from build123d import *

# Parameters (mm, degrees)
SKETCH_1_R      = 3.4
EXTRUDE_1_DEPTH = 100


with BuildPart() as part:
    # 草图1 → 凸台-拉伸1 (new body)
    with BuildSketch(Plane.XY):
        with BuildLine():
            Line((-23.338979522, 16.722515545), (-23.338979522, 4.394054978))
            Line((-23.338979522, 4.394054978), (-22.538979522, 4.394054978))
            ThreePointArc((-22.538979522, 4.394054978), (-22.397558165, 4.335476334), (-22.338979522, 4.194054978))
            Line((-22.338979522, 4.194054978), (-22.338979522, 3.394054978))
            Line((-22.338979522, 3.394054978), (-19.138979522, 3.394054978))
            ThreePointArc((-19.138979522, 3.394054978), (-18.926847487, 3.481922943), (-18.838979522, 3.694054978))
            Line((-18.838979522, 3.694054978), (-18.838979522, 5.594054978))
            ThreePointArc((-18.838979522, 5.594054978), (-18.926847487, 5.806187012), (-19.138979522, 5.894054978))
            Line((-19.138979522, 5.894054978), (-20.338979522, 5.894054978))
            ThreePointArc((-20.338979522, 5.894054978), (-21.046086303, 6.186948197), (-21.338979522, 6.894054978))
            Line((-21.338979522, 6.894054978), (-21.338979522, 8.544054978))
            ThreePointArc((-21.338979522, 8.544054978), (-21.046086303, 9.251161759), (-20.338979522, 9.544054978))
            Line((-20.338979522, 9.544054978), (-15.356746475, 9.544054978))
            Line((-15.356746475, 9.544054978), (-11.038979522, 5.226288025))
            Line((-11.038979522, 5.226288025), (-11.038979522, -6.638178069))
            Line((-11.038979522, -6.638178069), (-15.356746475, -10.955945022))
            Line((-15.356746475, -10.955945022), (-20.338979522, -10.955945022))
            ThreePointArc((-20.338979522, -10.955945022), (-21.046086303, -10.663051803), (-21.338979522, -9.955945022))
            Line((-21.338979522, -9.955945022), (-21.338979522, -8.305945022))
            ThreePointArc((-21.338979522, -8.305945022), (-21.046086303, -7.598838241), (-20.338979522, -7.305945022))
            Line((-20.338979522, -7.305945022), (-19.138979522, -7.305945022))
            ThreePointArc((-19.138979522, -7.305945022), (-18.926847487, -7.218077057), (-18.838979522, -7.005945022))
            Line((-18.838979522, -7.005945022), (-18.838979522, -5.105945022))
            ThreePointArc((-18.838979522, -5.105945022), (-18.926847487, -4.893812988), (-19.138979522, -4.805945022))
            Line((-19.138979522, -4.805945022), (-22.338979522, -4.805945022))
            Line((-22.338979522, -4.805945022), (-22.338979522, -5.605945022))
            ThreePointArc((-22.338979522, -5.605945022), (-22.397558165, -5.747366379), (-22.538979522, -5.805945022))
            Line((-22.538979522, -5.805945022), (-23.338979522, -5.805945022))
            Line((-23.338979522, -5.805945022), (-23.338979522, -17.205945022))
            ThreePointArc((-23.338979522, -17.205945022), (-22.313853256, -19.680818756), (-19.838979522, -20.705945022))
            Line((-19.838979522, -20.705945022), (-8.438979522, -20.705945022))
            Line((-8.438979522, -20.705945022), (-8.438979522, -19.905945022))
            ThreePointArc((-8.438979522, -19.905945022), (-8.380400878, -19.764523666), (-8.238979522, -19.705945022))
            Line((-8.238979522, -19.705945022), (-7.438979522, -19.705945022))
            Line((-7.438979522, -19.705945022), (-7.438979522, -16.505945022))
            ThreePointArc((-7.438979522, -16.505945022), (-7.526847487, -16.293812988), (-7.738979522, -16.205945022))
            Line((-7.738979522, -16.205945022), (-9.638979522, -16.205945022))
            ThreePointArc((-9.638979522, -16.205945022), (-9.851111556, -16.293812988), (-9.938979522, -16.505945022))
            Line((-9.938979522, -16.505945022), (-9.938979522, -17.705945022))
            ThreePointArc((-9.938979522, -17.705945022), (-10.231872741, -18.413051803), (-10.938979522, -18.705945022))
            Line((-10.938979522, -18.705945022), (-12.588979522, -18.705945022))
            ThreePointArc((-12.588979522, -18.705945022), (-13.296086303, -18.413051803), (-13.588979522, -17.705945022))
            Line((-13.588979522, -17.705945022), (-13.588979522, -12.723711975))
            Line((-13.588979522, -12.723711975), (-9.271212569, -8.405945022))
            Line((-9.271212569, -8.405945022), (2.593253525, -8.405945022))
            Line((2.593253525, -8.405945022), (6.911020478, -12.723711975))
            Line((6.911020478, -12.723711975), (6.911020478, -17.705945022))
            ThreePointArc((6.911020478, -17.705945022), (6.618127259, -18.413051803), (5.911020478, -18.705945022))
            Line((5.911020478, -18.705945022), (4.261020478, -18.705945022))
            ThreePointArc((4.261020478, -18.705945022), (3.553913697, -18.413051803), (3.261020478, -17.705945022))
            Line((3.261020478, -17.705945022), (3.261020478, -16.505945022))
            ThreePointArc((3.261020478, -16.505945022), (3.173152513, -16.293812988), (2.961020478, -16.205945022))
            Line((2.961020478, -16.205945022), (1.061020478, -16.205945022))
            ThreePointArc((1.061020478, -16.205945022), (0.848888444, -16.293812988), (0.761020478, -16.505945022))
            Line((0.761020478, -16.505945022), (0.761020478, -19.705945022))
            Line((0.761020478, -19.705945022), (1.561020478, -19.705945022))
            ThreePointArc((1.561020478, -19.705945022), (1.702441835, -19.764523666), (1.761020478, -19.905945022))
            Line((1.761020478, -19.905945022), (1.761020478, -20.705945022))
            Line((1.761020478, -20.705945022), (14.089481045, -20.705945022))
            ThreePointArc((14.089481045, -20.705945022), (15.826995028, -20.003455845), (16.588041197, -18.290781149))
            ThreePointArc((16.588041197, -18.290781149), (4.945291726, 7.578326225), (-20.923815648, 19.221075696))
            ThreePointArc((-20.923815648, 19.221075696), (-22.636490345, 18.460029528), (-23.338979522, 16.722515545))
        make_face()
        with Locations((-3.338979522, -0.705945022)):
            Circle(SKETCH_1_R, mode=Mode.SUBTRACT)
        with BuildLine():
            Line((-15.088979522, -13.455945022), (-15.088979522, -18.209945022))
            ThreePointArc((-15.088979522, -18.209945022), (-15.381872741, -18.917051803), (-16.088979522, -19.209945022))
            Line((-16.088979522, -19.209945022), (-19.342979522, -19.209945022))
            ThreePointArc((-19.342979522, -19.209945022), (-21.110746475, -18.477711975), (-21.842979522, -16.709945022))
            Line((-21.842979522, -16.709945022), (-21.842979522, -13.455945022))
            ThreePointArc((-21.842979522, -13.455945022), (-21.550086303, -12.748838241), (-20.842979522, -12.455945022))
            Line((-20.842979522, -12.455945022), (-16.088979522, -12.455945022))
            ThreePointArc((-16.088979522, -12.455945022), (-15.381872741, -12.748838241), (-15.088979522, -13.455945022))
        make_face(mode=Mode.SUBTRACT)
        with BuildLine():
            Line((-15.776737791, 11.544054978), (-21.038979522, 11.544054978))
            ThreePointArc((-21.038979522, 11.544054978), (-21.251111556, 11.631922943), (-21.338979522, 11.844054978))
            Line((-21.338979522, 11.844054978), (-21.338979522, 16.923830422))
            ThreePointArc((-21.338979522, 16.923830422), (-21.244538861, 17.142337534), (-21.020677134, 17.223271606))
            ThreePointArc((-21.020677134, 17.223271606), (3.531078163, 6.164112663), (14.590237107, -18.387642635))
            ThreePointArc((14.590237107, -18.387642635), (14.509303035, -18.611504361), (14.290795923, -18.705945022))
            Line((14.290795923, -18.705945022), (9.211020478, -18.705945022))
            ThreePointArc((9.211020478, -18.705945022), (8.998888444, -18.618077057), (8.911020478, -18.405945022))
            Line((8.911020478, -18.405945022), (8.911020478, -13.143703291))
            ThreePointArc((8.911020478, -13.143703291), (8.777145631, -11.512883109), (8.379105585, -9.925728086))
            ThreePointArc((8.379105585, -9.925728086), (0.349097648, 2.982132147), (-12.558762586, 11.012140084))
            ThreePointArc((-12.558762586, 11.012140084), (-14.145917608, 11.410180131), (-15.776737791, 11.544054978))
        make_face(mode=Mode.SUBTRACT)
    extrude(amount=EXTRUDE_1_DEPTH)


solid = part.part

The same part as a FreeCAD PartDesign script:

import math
import FreeCAD as App
import Part
import Sketcher
from FreeCAD import Vector

doc = App.newDocument("Part")
body = doc.addObject("PartDesign::Body", "Body")

sketch1 = doc.addObject("Sketcher::SketchObject", "Sketch")
body.addObject(sketch1)
sketch1.AttachmentSupport = (doc.XY_Plane, [""])
sketch1.MapMode = "FlatFace"
sketch1.addGeometry(Part.LineSegment(Vector(-23.34, 16.72, 0), Vector(-23.34, 4.39, 0)), False)
sketch1.addGeometry(Part.LineSegment(Vector(-23.34, 4.39, 0), Vector(-22.54, 4.39, 0)), False)
sketch1.addGeometry(Part.ArcOfCircle(Part.Circle(Vector(-22.54, 4.19, 0), Vector(0, 0, 1), 0.2), math.radians(0), math.radians(90)), False)
sketch1.addGeometry(Part.LineSegment(Vector(-22.34, 4.19, 0), Vector(-22.34, 3.39, 0)), False)
sketch1.addGeometry(Part.LineSegment(Vector(-22.34, 3.39, 0), Vector(-19.14, 3.39, 0)), False)
sketch1.addGeometry(Part.ArcOfCircle(Part.Circle(Vector(-19.14, 3.69, 0), Vector(0, 0, 1), 0.3), math.radians(-90), math.radians(0)), False)
sketch1.addGeometry(Part.LineSegment(Vector(-18.84, 3.69, 0), Vector(-18.84, 5.59, 0)), False)
sketch1.addGeometry(Part.ArcOfCircle(Part.Circle(Vector(-19.14, 5.59, 0), Vector(0, 0, 1), 0.3), math.radians(0), math.radians(90)), False)
sketch1.addGeometry(Part.LineSegment(Vector(-19.14, 5.89, 0), Vector(-20.34, 5.89, 0)), False)
sketch1.addGeometry(Part.ArcOfCircle(Part.Circle(Vector(-20.34, 6.89, 0), Vector(0, 0, 1), 1), math.radians(-180), math.radians(-90)), False)
sketch1.addGeometry(Part.LineSegment(Vector(-21.34, 6.89, 0), Vector(-21.34, 8.54, 0)), False)
sketch1.addGeometry(Part.ArcOfCircle(Part.Circle(Vector(-20.34, 8.54, 0), Vector(0, 0, 1), 1), math.radians(90), math.radians(180)), False)
sketch1.addGeometry(Part.LineSegment(Vector(-20.34, 9.54, 0), Vector(-15.36, 9.54, 0)), False)
sketch1.addGeometry(Part.LineSegment(Vector(-15.36, 9.54, 0), Vector(-11.04, 5.23, 0)), False)
sketch1.addGeometry(Part.LineSegment(Vector(-11.04, 5.23, 0), Vector(-11.04, -6.64, 0)), False)
sketch1.addGeometry(Part.LineSegment(Vector(-11.04, -6.64, 0), Vector(-15.36, -10.96, 0)), False)
sketch1.addGeometry(Part.LineSegment(Vector(-15.36, -10.96, 0), Vector(-20.34, -10.96, 0)), False)
sketch1.addGeometry(Part.ArcOfCircle(Part.Circle(Vector(-20.34, -9.96, 0), Vector(0, 0, 1), 1), math.radians(-180), math.radians(-90)), False)
sketch1.addGeometry(Part.LineSegment(Vector(-21.34, -9.96, 0), Vector(-21.34, -8.31, 0)), False)
sketch1.addGeometry(Part.ArcOfCircle(Part.Circle(Vector(-20.34, -8.31, 0), Vector(0, 0, 1), 1), math.radians(90), math.radians(180)), False)
sketch1.addGeometry(Part.LineSegment(Vector(-20.34, -7.31, 0), Vector(-19.14, -7.31, 0)), False)
sketch1.addGeometry(Part.ArcOfCircle(Part.Circle(Vector(-19.14, -7.01, 0), Vector(0, 0, 1), 0.3), math.radians(-90), math.radians(0)), False)
sketch1.addGeometry(Part.LineSegment(Vector(-18.84, -7.01, 0), Vector(-18.84, -5.11, 0)), False)
sketch1.addGeometry(Part.ArcOfCircle(Part.Circle(Vector(-19.14, -5.11, 0), Vector(0, 0, 1), 0.3), math.radians(0), math.radians(90)), False)
sketch1.addGeometry(Part.LineSegment(Vector(-19.14, -4.81, 0), Vector(-22.34, -4.81, 0)), False)
sketch1.addGeometry(Part.LineSegment(Vector(-22.34, -4.81, 0), Vector(-22.34, -5.61, 0)), False)
sketch1.addGeometry(Part.ArcOfCircle(Part.Circle(Vector(-22.54, -5.61, 0), Vector(0, 0, 1), 0.2), math.radians(-90), math.radians(0)), False)
sketch1.addGeometry(Part.LineSegment(Vector(-22.54, -5.81, 0), Vector(-23.34, -5.81, 0)), False)
sketch1.addGeometry(Part.LineSegment(Vector(-23.34, -5.81, 0), Vector(-23.34, -17.21, 0)), False)
sketch1.addGeometry(Part.ArcOfCircle(Part.Circle(Vector(-19.84, -17.21, 0), Vector(0, 0, 1), 3.5), math.radians(-180), math.radians(-90)), False)
sketch1.addGeometry(Part.LineSegment(Vector(-19.84, -20.71, 0), Vector(-8.44, -20.71, 0)), False)
sketch1.addGeometry(Part.LineSegment(Vector(-8.44, -20.71, 0), Vector(-8.44, -19.91, 0)), False)
sketch1.addGeometry(Part.ArcOfCircle(Part.Circle(Vector(-8.24, -19.91, 0), Vector(0, 0, 1), 0.2), math.radians(90), math.radians(180)), False)
sketch1.addGeometry(Part.LineSegment(Vector(-8.24, -19.71, 0), Vector(-7.44, -19.71, 0)), False)
sketch1.addGeometry(Part.LineSegment(Vector(-7.44, -19.71, 0), Vector(-7.44, -16.51, 0)), False)
sketch1.addGeometry(Part.ArcOfCircle(Part.Circle(Vector(-7.74, -16.51, 0), Vector(0, 0, 1), 0.3), math.radians(0), math.radians(90)), False)
sketch1.addGeometry(Part.LineSegment(Vector(-7.74, -16.21, 0), Vector(-9.64, -16.21, 0)), False)
sketch1.addGeometry(Part.ArcOfCircle(Part.Circle(Vector(-9.64, -16.51, 0), Vector(0, 0, 1), 0.3), math.radians(90), math.radians(180)), False)
sketch1.addGeometry(Part.LineSegment(Vector(-9.94, -16.51, 0), Vector(-9.94, -17.71, 0)), False)
sketch1.addGeometry(Part.ArcOfCircle(Part.Circle(Vector(-10.94, -17.71, 0), Vector(0, 0, 1), 1), math.radians(-90), math.radians(0)), False)
sketch1.addGeometry(Part.LineSegment(Vector(-10.94, -18.71, 0), Vector(-12.59, -18.71, 0)), False)
sketch1.addGeometry(Part.ArcOfCircle(Part.Circle(Vector(-12.59, -17.71, 0), Vector(0, 0, 1), 1), math.radians(-180), math.radians(-90)), False)
sketch1.addGeometry(Part.LineSegment(Vector(-13.59, -17.71, 0), Vector(-13.59, -12.72, 0)), False)
sketch1.addGeometry(Part.LineSegment(Vector(-13.59, -12.72, 0), Vector(-9.27, -8.41, 0)), False)
sketch1.addGeometry(Part.LineSegment(Vector(-9.27, -8.41, 0), Vector(2.59, -8.41, 0)), False)
sketch1.addGeometry(Part.LineSegment(Vector(2.59, -8.41, 0), Vector(6.91, -12.72, 0)), False)
sketch1.addGeometry(Part.LineSegment(Vector(6.91, -12.72, 0), Vector(6.91, -17.71, 0)), False)
sketch1.addGeometry(Part.ArcOfCircle(Part.Circle(Vector(5.91, -17.71, 0), Vector(0, 0, 1), 1), math.radians(-90), math.radians(0)), False)
sketch1.addGeometry(Part.LineSegment(Vector(5.91, -18.71, 0), Vector(4.26, -18.71, 0)), False)
sketch1.addGeometry(Part.ArcOfCircle(Part.Circle(Vector(4.26, -17.71, 0), Vector(0, 0, 1), 1), math.radians(-180), math.radians(-90)), False)
sketch1.addGeometry(Part.LineSegment(Vector(3.26, -17.71, 0), Vector(3.26, -16.51, 0)), False)
sketch1.addGeometry(Part.ArcOfCircle(Part.Circle(Vector(2.96, -16.51, 0), Vector(0, 0, 1), 0.3), math.radians(0), math.radians(90)), False)
sketch1.addGeometry(Part.LineSegment(Vector(2.96, -16.21, 0), Vector(1.06, -16.21, 0)), False)
sketch1.addGeometry(Part.ArcOfCircle(Part.Circle(Vector(1.06, -16.51, 0), Vector(0, 0, 1), 0.3), math.radians(90), math.radians(180)), False)
sketch1.addGeometry(Part.LineSegment(Vector(0.76, -16.51, 0), Vector(0.76, -19.71, 0)), False)
sketch1.addGeometry(Part.LineSegment(Vector(0.76, -19.71, 0), Vector(1.56, -19.71, 0)), False)
sketch1.addGeometry(Part.ArcOfCircle(Part.Circle(Vector(1.56, -19.91, 0), Vector(0, 0, 1), 0.2), math.radians(0), math.radians(90)), False)
sketch1.addGeometry(Part.LineSegment(Vector(1.76, -19.91, 0), Vector(1.76, -20.71, 0)), False)
sketch1.addGeometry(Part.LineSegment(Vector(1.76, -20.71, 0), Vector(14.09, -20.71, 0)), False)
sketch1.addGeometry(Part.ArcOfCircle(Part.Circle(Vector(14.09, -18.21, 0), Vector(0, 0, 1), 2.5), math.radians(-90), math.radians(-2)), False)
sketch1.addGeometry(Part.ArcOfCircle(Part.Circle(Vector(-23.34, -20.71, 0), Vector(0, 0, 1), 40), math.radians(3), math.radians(87)), False)
sketch1.addGeometry(Part.ArcOfCircle(Part.Circle(Vector(-20.84, 16.72, 0), Vector(0, 0, 1), 2.5), math.radians(92), math.radians(180)), False)
sketch1.addGeometry(Part.ArcOfCircle(Part.Circle(Vector(-16.09, -13.46, 0), Vector(0, 0, 1), 1), math.radians(0), math.radians(90)), False)
sketch1.addGeometry(Part.LineSegment(Vector(-15.09, -13.46, 0), Vector(-15.09, -18.21, 0)), False)
sketch1.addGeometry(Part.ArcOfCircle(Part.Circle(Vector(-16.09, -18.21, 0), Vector(0, 0, 1), 1), math.radians(-90), math.radians(0)), False)
sketch1.addGeometry(Part.LineSegment(Vector(-16.09, -19.21, 0), Vector(-19.34, -19.21, 0)), False)
sketch1.addGeometry(Part.ArcOfCircle(Part.Circle(Vector(-19.34, -16.71, 0), Vector(0, 0, 1), 2.5), math.radians(180), math.radians(270)), False)
sketch1.addGeometry(Part.LineSegment(Vector(-21.84, -16.71, 0), Vector(-21.84, -13.46, 0)), False)
sketch1.addGeometry(Part.ArcOfCircle(Part.Circle(Vector(-20.84, -13.46, 0), Vector(0, 0, 1), 1), math.radians(90), math.radians(180)), False)
sketch1.addGeometry(Part.LineSegment(Vector(-20.84, -12.46, 0), Vector(-16.09, -12.46, 0)), False)
sketch1.addGeometry(Part.ArcOfCircle(Part.Circle(Vector(-15.78, 1.54, 0), Vector(0, 0, 1), 10), math.radians(71.23), math.radians(90)), False)
sketch1.addGeometry(Part.LineSegment(Vector(-15.78, 11.54, 0), Vector(-21.04, 11.54, 0)), False)
sketch1.addGeometry(Part.ArcOfCircle(Part.Circle(Vector(-21.04, 11.84, 0), Vector(0, 0, 1), 0.3), math.radians(180), math.radians(270)), False)
sketch1.addGeometry(Part.LineSegment(Vector(-21.34, 11.84, 0), Vector(-21.34, 16.92, 0)), False)
sketch1.addGeometry(Part.ArcOfCircle(Part.Circle(Vector(-21.04, 16.92, 0), Vector(0, 0, 1), 0.3), math.radians(87), math.radians(180)), False)
sketch1.addGeometry(Part.ArcOfCircle(Part.Circle(Vector(-23.34, -20.71, 0), Vector(0, 0, 1), 38), math.radians(3), math.radians(87)), False)
sketch1.addGeometry(Part.ArcOfCircle(Part.Circle(Vector(14.29, -18.41, 0), Vector(0, 0, 1), 0.3), math.radians(-90), math.radians(3)), False)
sketch1.addGeometry(Part.LineSegment(Vector(14.29, -18.71, 0), Vector(9.21, -18.71, 0)), False)
sketch1.addGeometry(Part.ArcOfCircle(Part.Circle(Vector(9.21, -18.41, 0), Vector(0, 0, 1), 0.3), math.radians(180), math.radians(270)), False)
sketch1.addGeometry(Part.LineSegment(Vector(8.91, -18.41, 0), Vector(8.91, -13.14, 0)), False)
sketch1.addGeometry(Part.ArcOfCircle(Part.Circle(Vector(-1.09, -13.14, 0), Vector(0, 0, 1), 10), math.radians(0), math.radians(18.77)), False)
sketch1.addGeometry(Part.ArcOfCircle(Part.Circle(Vector(-23.34, -20.71, 0), Vector(0, 0, 1), 33.5), math.radians(19), math.radians(71)), False)
sketch1.addGeometry(Part.Circle(Vector(-3.34, -0.71, 0), Vector(0, 0, 1), 3.4), False)
sketch1.addConstraint(Sketcher.Constraint("Coincident", 0, 2, 1, 1))
sketch1.addConstraint(Sketcher.Constraint("Tangent", 1, 2, 2, 2))
sketch1.addConstraint(Sketcher.Constraint("Tangent", 2, 1, 3, 1))
sketch1.addConstraint(Sketcher.Constraint("Coincident", 3, 2, 4, 1))
sketch1.addConstraint(Sketcher.Constraint("Tangent", 4, 2, 5, 1))
sketch1.addConstraint(Sketcher.Constraint("Tangent", 5, 2, 6, 1))
sketch1.addConstraint(Sketcher.Constraint("Tangent", 6, 2, 7, 1))
sketch1.addConstraint(Sketcher.Constraint("Tangent", 7, 2, 8, 1))
sketch1.addConstraint(Sketcher.Constraint("Tangent", 8, 2, 9, 2))
sketch1.addConstraint(Sketcher.Constraint("Tangent", 9, 1, 10, 1))
sketch1.addConstraint(Sketcher.Constraint("Tangent", 10, 2, 11, 2))
sketch1.addConstraint(Sketcher.Constraint("Tangent", 11, 1, 12, 1))
sketch1.addConstraint(Sketcher.Constraint("Coincident", 12, 2, 13, 1))
sketch1.addConstraint(Sketcher.Constraint("Coincident", 13, 2, 14, 1))
sketch1.addConstraint(Sketcher.Constraint("Coincident", 14, 2, 15, 1))
sketch1.addConstraint(Sketcher.Constraint("Coincident", 15, 2, 16, 1))
sketch1.addConstraint(Sketcher.Constraint("Tangent", 16, 2, 17, 2))
sketch1.addConstraint(Sketcher.Constraint("Tangent", 17, 1, 18, 1))
sketch1.addConstraint(Sketcher.Constraint("Tangent", 18, 2, 19, 2))
sketch1.addConstraint(Sketcher.Constraint("Tangent", 19, 1, 20, 1))
sketch1.addConstraint(Sketcher.Constraint("Tangent", 20, 2, 21, 1))
sketch1.addConstraint(Sketcher.Constraint("Tangent", 21, 2, 22, 1))
sketch1.addConstraint(Sketcher.Constraint("Tangent", 22, 2, 23, 1))
sketch1.addConstraint(Sketcher.Constraint("Tangent", 23, 2, 24, 1))
sketch1.addConstraint(Sketcher.Constraint("Coincident", 24, 2, 25, 1))
sketch1.addConstraint(Sketcher.Constraint("Tangent", 25, 2, 26, 2))
sketch1.addConstraint(Sketcher.Constraint("Tangent", 26, 1, 27, 1))
sketch1.addConstraint(Sketcher.Constraint("Coincident", 27, 2, 28, 1))
sketch1.addConstraint(Sketcher.Constraint("Tangent", 28, 2, 29, 1))
sketch1.addConstraint(Sketcher.Constraint("Tangent", 29, 2, 30, 1))
sketch1.addConstraint(Sketcher.Constraint("Coincident", 30, 2, 31, 1))
sketch1.addConstraint(Sketcher.Constraint("Tangent", 31, 2, 32, 2))
sketch1.addConstraint(Sketcher.Constraint("Tangent", 32, 1, 33, 1))
sketch1.addConstraint(Sketcher.Constraint("Coincident", 33, 2, 34, 1))
sketch1.addConstraint(Sketcher.Constraint("Tangent", 34, 2, 35, 1))
sketch1.addConstraint(Sketcher.Constraint("Tangent", 35, 2, 36, 1))
sketch1.addConstraint(Sketcher.Constraint("Tangent", 36, 2, 37, 1))
sketch1.addConstraint(Sketcher.Constraint("Tangent", 37, 2, 38, 1))
sketch1.addConstraint(Sketcher.Constraint("Tangent", 38, 2, 39, 2))
sketch1.addConstraint(Sketcher.Constraint("Tangent", 39, 1, 40, 1))
sketch1.addConstraint(Sketcher.Constraint("Tangent", 40, 2, 41, 2))
sketch1.addConstraint(Sketcher.Constraint("Tangent", 41, 1, 42, 1))
sketch1.addConstraint(Sketcher.Constraint("Coincident", 42, 2, 43, 1))
sketch1.addConstraint(Sketcher.Constraint("Coincident", 43, 2, 44, 1))
sketch1.addConstraint(Sketcher.Constraint("Coincident", 44, 2, 45, 1))
sketch1.addConstraint(Sketcher.Constraint("Coincident", 45, 2, 46, 1))
sketch1.addConstraint(Sketcher.Constraint("Tangent", 46, 2, 47, 2))
sketch1.addConstraint(Sketcher.Constraint("Tangent", 47, 1, 48, 1))
sketch1.addConstraint(Sketcher.Constraint("Tangent", 48, 2, 49, 2))
sketch1.addConstraint(Sketcher.Constraint("Tangent", 49, 1, 50, 1))
sketch1.addConstraint(Sketcher.Constraint("Tangent", 50, 2, 51, 1))
sketch1.addConstraint(Sketcher.Constraint("Tangent", 51, 2, 52, 1))
sketch1.addConstraint(Sketcher.Constraint("Tangent", 52, 2, 53, 1))
sketch1.addConstraint(Sketcher.Constraint("Tangent", 53, 2, 54, 1))
sketch1.addConstraint(Sketcher.Constraint("Coincident", 54, 2, 55, 1))
sketch1.addConstraint(Sketcher.Constraint("Tangent", 55, 2, 56, 2))
sketch1.addConstraint(Sketcher.Constraint("Tangent", 56, 1, 57, 1))
sketch1.addConstraint(Sketcher.Constraint("Coincident", 57, 2, 58, 1))
sketch1.addConstraint(Sketcher.Constraint("Tangent", 58, 2, 59, 1))
sketch1.addConstraint(Sketcher.Constraint("Coincident", 59, 2, 60, 1))
sketch1.addConstraint(Sketcher.Constraint("Coincident", 60, 2, 61, 1))
sketch1.addConstraint(Sketcher.Constraint("Tangent", 61, 2, 0, 1))
sketch1.addConstraint(Sketcher.Constraint("Tangent", 62, 1, 63, 1))
sketch1.addConstraint(Sketcher.Constraint("Tangent", 63, 2, 64, 2))
sketch1.addConstraint(Sketcher.Constraint("Tangent", 64, 1, 65, 1))
sketch1.addConstraint(Sketcher.Constraint("Tangent", 65, 2, 66, 2))
sketch1.addConstraint(Sketcher.Constraint("Tangent", 66, 1, 67, 1))
sketch1.addConstraint(Sketcher.Constraint("Tangent", 67, 2, 68, 2))
sketch1.addConstraint(Sketcher.Constraint("Tangent", 68, 1, 69, 1))
sketch1.addConstraint(Sketcher.Constraint("Tangent", 69, 2, 62, 2))
sketch1.addConstraint(Sketcher.Constraint("Tangent", 70, 2, 71, 1))
sketch1.addConstraint(Sketcher.Constraint("Tangent", 71, 2, 72, 2))
sketch1.addConstraint(Sketcher.Constraint("Tangent", 72, 1, 73, 1))
sketch1.addConstraint(Sketcher.Constraint("Tangent", 73, 2, 74, 2))
sketch1.addConstraint(Sketcher.Constraint("Tangent", 74, 1, 75, 2))
sketch1.addConstraint(Sketcher.Constraint("Tangent", 75, 1, 76, 2))
sketch1.addConstraint(Sketcher.Constraint("Tangent", 76, 1, 77, 1))
sketch1.addConstraint(Sketcher.Constraint("Tangent", 77, 2, 78, 2))
sketch1.addConstraint(Sketcher.Constraint("Tangent", 78, 1, 79, 1))
sketch1.addConstraint(Sketcher.Constraint("Tangent", 79, 2, 80, 1))
sketch1.addConstraint(Sketcher.Constraint("Tangent", 80, 2, 81, 1))
sketch1.addConstraint(Sketcher.Constraint("Tangent", 81, 2, 70, 1))
sketch1.addConstraint(Sketcher.Constraint("Vertical", 0))
sketch1.addConstraint(Sketcher.Constraint("Horizontal", 1))
sketch1.addConstraint(Sketcher.Constraint("Vertical", 3))
sketch1.addConstraint(Sketcher.Constraint("Horizontal", 4))
sketch1.addConstraint(Sketcher.Constraint("Vertical", 6))
sketch1.addConstraint(Sketcher.Constraint("Horizontal", 8))
sketch1.addConstraint(Sketcher.Constraint("Vertical", 10))
sketch1.addConstraint(Sketcher.Constraint("Horizontal", 12))
sketch1.addConstraint(Sketcher.Constraint("Vertical", 14))
sketch1.addConstraint(Sketcher.Constraint("Horizontal", 16))
sketch1.addConstraint(Sketcher.Constraint("Vertical", 18))
sketch1.addConstraint(Sketcher.Constraint("Horizontal", 20))
sketch1.addConstraint(Sketcher.Constraint("Vertical", 22))
sketch1.addConstraint(Sketcher.Constraint("Horizontal", 24))
sketch1.addConstraint(Sketcher.Constraint("Vertical", 25))
sketch1.addConstraint(Sketcher.Constraint("Horizontal", 27))
sketch1.addConstraint(Sketcher.Constraint("Vertical", 28))
sketch1.addConstraint(Sketcher.Constraint("Horizontal", 30))
sketch1.addConstraint(Sketcher.Constraint("Vertical", 31))
sketch1.addConstraint(Sketcher.Constraint("Horizontal", 33))
sketch1.addConstraint(Sketcher.Constraint("Vertical", 34))
sketch1.addConstraint(Sketcher.Constraint("Horizontal", 36))
sketch1.addConstraint(Sketcher.Constraint("Vertical", 38))
sketch1.addConstraint(Sketcher.Constraint("Horizontal", 40))
sketch1.addConstraint(Sketcher.Constraint("Vertical", 42))
sketch1.addConstraint(Sketcher.Constraint("Horizontal", 44))
sketch1.addConstraint(Sketcher.Constraint("Vertical", 46))
sketch1.addConstraint(Sketcher.Constraint("Horizontal", 48))
sketch1.addConstraint(Sketcher.Constraint("Vertical", 50))
sketch1.addConstraint(Sketcher.Constraint("Horizontal", 52))
sketch1.addConstraint(Sketcher.Constraint("Vertical", 54))
sketch1.addConstraint(Sketcher.Constraint("Horizontal", 55))
sketch1.addConstraint(Sketcher.Constraint("Vertical", 57))
sketch1.addConstraint(Sketcher.Constraint("Horizontal", 58))
sketch1.addConstraint(Sketcher.Constraint("Vertical", 63))
sketch1.addConstraint(Sketcher.Constraint("Horizontal", 65))
sketch1.addConstraint(Sketcher.Constraint("Vertical", 67))
sketch1.addConstraint(Sketcher.Constraint("Horizontal", 69))
sketch1.addConstraint(Sketcher.Constraint("Horizontal", 71))
sketch1.addConstraint(Sketcher.Constraint("Vertical", 73))
sketch1.addConstraint(Sketcher.Constraint("Horizontal", 77))
sketch1.addConstraint(Sketcher.Constraint("Vertical", 79))
sketch1.addConstraint(Sketcher.Constraint("Coincident", 75, 3, 60, 3))
sketch1.addConstraint(Sketcher.Constraint("Coincident", 81, 3, 60, 3))
sketch1.addConstraint(Sketcher.Constraint("Equal", 5, 7))
sketch1.addConstraint(Sketcher.Constraint("Equal", 9, 11))
sketch1.addConstraint(Sketcher.Constraint("Equal", 11, 17))
sketch1.addConstraint(Sketcher.Constraint("Equal", 17, 19))
sketch1.addConstraint(Sketcher.Constraint("Equal", 7, 21))
sketch1.addConstraint(Sketcher.Constraint("Equal", 21, 23))
sketch1.addConstraint(Sketcher.Constraint("Equal", 2, 26))
sketch1.addConstraint(Sketcher.Constraint("Equal", 26, 32))
sketch1.addConstraint(Sketcher.Constraint("Equal", 23, 35))
sketch1.addConstraint(Sketcher.Constraint("Equal", 35, 37))
sketch1.addConstraint(Sketcher.Constraint("Equal", 19, 39))
sketch1.addConstraint(Sketcher.Constraint("Equal", 39, 41))
sketch1.addConstraint(Sketcher.Constraint("Equal", 41, 47))
sketch1.addConstraint(Sketcher.Constraint("Equal", 47, 49))
sketch1.addConstraint(Sketcher.Constraint("Equal", 37, 51))
sketch1.addConstraint(Sketcher.Constraint("Equal", 51, 53))
sketch1.addConstraint(Sketcher.Constraint("Equal", 32, 56))
sketch1.addConstraint(Sketcher.Constraint("Equal", 59, 61))
sketch1.addConstraint(Sketcher.Constraint("Equal", 49, 62))
sketch1.addConstraint(Sketcher.Constraint("Equal", 62, 64))
sketch1.addConstraint(Sketcher.Constraint("Equal", 61, 66))
sketch1.addConstraint(Sketcher.Constraint("Equal", 64, 68))
sketch1.addConstraint(Sketcher.Constraint("Equal", 53, 72))
sketch1.addConstraint(Sketcher.Constraint("Equal", 72, 74))
sketch1.addConstraint(Sketcher.Constraint("Equal", 74, 76))
sketch1.addConstraint(Sketcher.Constraint("Equal", 76, 78))
sketch1.addConstraint(Sketcher.Constraint("Equal", 70, 80))
sketch1.addConstraint(Sketcher.Constraint("Perpendicular", 13, 15))
sketch1.addConstraint(Sketcher.Constraint("Parallel", 15, 43))
sketch1.addConstraint(Sketcher.Constraint("Perpendicular", 43, 45))
sketch1.addConstraint(Sketcher.Constraint("Horizontal", 41, 3, 47, 3))
sketch1.addConstraint(Sketcher.Constraint("Horizontal", 37, 3, 51, 3))
sketch1.addConstraint(Sketcher.Constraint("Horizontal", 32, 3, 56, 3))
sketch1.addConstraint(Sketcher.Constraint("Horizontal", 81, 3, 29, 2))
sketch1.addConstraint(Sketcher.Constraint("Horizontal", 42, 2, 45, 2))
sketch1.addConstraint(Sketcher.Constraint("Horizontal", 30, 2, 57, 2))
sketch1.addConstraint(Sketcher.Constraint("Horizontal", 48, 2, 76, 1))
sketch1.addConstraint(Sketcher.Constraint("Vertical", 11, 3, 17, 3))
sketch1.addConstraint(Sketcher.Constraint("Vertical", 7, 3, 21, 3))
sketch1.addConstraint(Sketcher.Constraint("Vertical", 2, 3, 26, 3))
sketch1.addConstraint(Sketcher.Constraint("Vertical", 81, 3, 0, 2))
sketch1.addConstraint(Sketcher.Constraint("Vertical", 12, 2, 15, 2))
sketch1.addConstraint(Sketcher.Constraint("Vertical", 0, 2, 27, 2))
sketch1.addConstraint(Sketcher.Constraint("Vertical", 18, 2, 72, 1))
sketch1.addConstraint(Sketcher.Constraint("Equal", 27, 33))
sketch1.addConstraint(Sketcher.Constraint("Equal", 40, 48))
sketch1.addConstraint(Sketcher.Constraint("Equal", 36, 52))
sketch1.addConstraint(Sketcher.Constraint("Equal", 33, 55))
sketch1.addConstraint(Sketcher.Constraint("Equal", 58, 0))
sketch1.addConstraint(Sketcher.Constraint("Equal", 55, 3))
sketch1.addConstraint(Sketcher.Constraint("Equal", 52, 6))
sketch1.addConstraint(Sketcher.Constraint("Equal", 48, 10))
sketch1.addConstraint(Sketcher.Constraint("Equal", 44, 14))
sketch1.addConstraint(Sketcher.Constraint("Equal", 10, 18))
sketch1.addConstraint(Sketcher.Constraint("Equal", 6, 22))
sketch1.addConstraint(Sketcher.Constraint("Equal", 3, 25))
sketch1.addConstraint(Sketcher.Constraint("Equal", 30, 28))
sketch1.addConstraint(Sketcher.Constraint("Equal", 25, 31))
sketch1.addConstraint(Sketcher.Constraint("Equal", 24, 34))
sketch1.addConstraint(Sketcher.Constraint("Equal", 20, 38))
sketch1.addConstraint(Sketcher.Constraint("Equal", 16, 42))
sketch1.addConstraint(Sketcher.Constraint("Equal", 69, 63))
sketch1.addConstraint(Sketcher.Constraint("Equal", 77, 73))
sketch1.addConstraint(Sketcher.Constraint("Equal", 13, 15))
sketch1.addConstraint(Sketcher.Constraint("Equal", 15, 43))
sketch1.addConstraint(Sketcher.Constraint("Radius", 9, 1.0))
sketch1.addConstraint(Sketcher.Constraint("Radius", 60, 40.0))
sketch1.addConstraint(Sketcher.Constraint("Radius", 70, 10.0))
sketch1.addConstraint(Sketcher.Constraint("Radius", 75, 38.0))
sketch1.addConstraint(Sketcher.Constraint("Diameter", 82, 6.8))
sketch1.addConstraint(Sketcher.Constraint("Radius", 2, 0.2))
sketch1.addConstraint(Sketcher.Constraint("Radius", 5, 0.3))
sketch1.addConstraint(Sketcher.Constraint("Radius", 29, 3.5))
sketch1.addConstraint(Sketcher.Constraint("Radius", 59, 2.5))
sketch1.addConstraint(Sketcher.Constraint("Radius", 81, 33.5))
sketch1.addConstraint(Sketcher.Constraint("DistanceX", 1, 1, 1, 2, 0.8))
sketch1.addConstraint(Sketcher.Constraint("DistanceX", 4, 1, 4, 2, 3.2))
sketch1.addConstraint(Sketcher.Constraint("DistanceX", 8, 2, 8, 1, 1.2))
sketch1.addConstraint(Sketcher.Constraint("DistanceX", 30, 1, 30, 2, 11.4))
sketch1.addConstraint(Sketcher.Constraint("DistanceX", 36, 2, 36, 1, 1.9))
sketch1.addConstraint(Sketcher.Constraint("DistanceX", 40, 2, 40, 1, 1.65))
sketch1.addConstraint(Sketcher.Constraint("DistanceX", 65, 2, 65, 1, 3.254))
sketch1.addConstraint(Sketcher.Constraint("DistanceX", 58, 1, 58, 2, 12.328461))
sketch1.addConstraint(Sketcher.Constraint("DistanceX", 71, 2, 71, 1, 5.262242))
sketch1.addConstraint(Sketcher.Constraint("DistanceX", 12, 1, 12, 2, 4.982233))
sketch1.addConstraint(Sketcher.Constraint("DistanceX", 44, 1, 44, 2, 11.864466))
sketch1.addConstraint(Sketcher.Constraint("DistanceX", 2, 3, -1, 1, 22.53898))
sketch1.addConstraint(Sketcher.Constraint("DistanceX", -1, 1, 47, 3, 5.91102))
sketch1.addConstraint(Sketcher.Constraint("DistanceX", 62, 3, -1, 1, 16.08898))
sketch1.addConstraint(Sketcher.Constraint("DistanceY", -1, 1, 74, 3, 16.92383))
sketch1.addConstraint(Sketcher.Constraint("DistanceX", 82, 3, -1, 1, 3.33898))
sketch1.addConstraint(Sketcher.Constraint("DistanceY", 62, 3, -1, 1, 13.455945))
sketch1.addConstraint(Sketcher.Constraint("DistanceY", 82, 3, -1, 1, 0.705945))
pad1 = doc.addObject("PartDesign::Pad", "Pad")
body.addObject(pad1)
pad1.Profile = sketch1
pad1.Length = 100

doc.recompute()
